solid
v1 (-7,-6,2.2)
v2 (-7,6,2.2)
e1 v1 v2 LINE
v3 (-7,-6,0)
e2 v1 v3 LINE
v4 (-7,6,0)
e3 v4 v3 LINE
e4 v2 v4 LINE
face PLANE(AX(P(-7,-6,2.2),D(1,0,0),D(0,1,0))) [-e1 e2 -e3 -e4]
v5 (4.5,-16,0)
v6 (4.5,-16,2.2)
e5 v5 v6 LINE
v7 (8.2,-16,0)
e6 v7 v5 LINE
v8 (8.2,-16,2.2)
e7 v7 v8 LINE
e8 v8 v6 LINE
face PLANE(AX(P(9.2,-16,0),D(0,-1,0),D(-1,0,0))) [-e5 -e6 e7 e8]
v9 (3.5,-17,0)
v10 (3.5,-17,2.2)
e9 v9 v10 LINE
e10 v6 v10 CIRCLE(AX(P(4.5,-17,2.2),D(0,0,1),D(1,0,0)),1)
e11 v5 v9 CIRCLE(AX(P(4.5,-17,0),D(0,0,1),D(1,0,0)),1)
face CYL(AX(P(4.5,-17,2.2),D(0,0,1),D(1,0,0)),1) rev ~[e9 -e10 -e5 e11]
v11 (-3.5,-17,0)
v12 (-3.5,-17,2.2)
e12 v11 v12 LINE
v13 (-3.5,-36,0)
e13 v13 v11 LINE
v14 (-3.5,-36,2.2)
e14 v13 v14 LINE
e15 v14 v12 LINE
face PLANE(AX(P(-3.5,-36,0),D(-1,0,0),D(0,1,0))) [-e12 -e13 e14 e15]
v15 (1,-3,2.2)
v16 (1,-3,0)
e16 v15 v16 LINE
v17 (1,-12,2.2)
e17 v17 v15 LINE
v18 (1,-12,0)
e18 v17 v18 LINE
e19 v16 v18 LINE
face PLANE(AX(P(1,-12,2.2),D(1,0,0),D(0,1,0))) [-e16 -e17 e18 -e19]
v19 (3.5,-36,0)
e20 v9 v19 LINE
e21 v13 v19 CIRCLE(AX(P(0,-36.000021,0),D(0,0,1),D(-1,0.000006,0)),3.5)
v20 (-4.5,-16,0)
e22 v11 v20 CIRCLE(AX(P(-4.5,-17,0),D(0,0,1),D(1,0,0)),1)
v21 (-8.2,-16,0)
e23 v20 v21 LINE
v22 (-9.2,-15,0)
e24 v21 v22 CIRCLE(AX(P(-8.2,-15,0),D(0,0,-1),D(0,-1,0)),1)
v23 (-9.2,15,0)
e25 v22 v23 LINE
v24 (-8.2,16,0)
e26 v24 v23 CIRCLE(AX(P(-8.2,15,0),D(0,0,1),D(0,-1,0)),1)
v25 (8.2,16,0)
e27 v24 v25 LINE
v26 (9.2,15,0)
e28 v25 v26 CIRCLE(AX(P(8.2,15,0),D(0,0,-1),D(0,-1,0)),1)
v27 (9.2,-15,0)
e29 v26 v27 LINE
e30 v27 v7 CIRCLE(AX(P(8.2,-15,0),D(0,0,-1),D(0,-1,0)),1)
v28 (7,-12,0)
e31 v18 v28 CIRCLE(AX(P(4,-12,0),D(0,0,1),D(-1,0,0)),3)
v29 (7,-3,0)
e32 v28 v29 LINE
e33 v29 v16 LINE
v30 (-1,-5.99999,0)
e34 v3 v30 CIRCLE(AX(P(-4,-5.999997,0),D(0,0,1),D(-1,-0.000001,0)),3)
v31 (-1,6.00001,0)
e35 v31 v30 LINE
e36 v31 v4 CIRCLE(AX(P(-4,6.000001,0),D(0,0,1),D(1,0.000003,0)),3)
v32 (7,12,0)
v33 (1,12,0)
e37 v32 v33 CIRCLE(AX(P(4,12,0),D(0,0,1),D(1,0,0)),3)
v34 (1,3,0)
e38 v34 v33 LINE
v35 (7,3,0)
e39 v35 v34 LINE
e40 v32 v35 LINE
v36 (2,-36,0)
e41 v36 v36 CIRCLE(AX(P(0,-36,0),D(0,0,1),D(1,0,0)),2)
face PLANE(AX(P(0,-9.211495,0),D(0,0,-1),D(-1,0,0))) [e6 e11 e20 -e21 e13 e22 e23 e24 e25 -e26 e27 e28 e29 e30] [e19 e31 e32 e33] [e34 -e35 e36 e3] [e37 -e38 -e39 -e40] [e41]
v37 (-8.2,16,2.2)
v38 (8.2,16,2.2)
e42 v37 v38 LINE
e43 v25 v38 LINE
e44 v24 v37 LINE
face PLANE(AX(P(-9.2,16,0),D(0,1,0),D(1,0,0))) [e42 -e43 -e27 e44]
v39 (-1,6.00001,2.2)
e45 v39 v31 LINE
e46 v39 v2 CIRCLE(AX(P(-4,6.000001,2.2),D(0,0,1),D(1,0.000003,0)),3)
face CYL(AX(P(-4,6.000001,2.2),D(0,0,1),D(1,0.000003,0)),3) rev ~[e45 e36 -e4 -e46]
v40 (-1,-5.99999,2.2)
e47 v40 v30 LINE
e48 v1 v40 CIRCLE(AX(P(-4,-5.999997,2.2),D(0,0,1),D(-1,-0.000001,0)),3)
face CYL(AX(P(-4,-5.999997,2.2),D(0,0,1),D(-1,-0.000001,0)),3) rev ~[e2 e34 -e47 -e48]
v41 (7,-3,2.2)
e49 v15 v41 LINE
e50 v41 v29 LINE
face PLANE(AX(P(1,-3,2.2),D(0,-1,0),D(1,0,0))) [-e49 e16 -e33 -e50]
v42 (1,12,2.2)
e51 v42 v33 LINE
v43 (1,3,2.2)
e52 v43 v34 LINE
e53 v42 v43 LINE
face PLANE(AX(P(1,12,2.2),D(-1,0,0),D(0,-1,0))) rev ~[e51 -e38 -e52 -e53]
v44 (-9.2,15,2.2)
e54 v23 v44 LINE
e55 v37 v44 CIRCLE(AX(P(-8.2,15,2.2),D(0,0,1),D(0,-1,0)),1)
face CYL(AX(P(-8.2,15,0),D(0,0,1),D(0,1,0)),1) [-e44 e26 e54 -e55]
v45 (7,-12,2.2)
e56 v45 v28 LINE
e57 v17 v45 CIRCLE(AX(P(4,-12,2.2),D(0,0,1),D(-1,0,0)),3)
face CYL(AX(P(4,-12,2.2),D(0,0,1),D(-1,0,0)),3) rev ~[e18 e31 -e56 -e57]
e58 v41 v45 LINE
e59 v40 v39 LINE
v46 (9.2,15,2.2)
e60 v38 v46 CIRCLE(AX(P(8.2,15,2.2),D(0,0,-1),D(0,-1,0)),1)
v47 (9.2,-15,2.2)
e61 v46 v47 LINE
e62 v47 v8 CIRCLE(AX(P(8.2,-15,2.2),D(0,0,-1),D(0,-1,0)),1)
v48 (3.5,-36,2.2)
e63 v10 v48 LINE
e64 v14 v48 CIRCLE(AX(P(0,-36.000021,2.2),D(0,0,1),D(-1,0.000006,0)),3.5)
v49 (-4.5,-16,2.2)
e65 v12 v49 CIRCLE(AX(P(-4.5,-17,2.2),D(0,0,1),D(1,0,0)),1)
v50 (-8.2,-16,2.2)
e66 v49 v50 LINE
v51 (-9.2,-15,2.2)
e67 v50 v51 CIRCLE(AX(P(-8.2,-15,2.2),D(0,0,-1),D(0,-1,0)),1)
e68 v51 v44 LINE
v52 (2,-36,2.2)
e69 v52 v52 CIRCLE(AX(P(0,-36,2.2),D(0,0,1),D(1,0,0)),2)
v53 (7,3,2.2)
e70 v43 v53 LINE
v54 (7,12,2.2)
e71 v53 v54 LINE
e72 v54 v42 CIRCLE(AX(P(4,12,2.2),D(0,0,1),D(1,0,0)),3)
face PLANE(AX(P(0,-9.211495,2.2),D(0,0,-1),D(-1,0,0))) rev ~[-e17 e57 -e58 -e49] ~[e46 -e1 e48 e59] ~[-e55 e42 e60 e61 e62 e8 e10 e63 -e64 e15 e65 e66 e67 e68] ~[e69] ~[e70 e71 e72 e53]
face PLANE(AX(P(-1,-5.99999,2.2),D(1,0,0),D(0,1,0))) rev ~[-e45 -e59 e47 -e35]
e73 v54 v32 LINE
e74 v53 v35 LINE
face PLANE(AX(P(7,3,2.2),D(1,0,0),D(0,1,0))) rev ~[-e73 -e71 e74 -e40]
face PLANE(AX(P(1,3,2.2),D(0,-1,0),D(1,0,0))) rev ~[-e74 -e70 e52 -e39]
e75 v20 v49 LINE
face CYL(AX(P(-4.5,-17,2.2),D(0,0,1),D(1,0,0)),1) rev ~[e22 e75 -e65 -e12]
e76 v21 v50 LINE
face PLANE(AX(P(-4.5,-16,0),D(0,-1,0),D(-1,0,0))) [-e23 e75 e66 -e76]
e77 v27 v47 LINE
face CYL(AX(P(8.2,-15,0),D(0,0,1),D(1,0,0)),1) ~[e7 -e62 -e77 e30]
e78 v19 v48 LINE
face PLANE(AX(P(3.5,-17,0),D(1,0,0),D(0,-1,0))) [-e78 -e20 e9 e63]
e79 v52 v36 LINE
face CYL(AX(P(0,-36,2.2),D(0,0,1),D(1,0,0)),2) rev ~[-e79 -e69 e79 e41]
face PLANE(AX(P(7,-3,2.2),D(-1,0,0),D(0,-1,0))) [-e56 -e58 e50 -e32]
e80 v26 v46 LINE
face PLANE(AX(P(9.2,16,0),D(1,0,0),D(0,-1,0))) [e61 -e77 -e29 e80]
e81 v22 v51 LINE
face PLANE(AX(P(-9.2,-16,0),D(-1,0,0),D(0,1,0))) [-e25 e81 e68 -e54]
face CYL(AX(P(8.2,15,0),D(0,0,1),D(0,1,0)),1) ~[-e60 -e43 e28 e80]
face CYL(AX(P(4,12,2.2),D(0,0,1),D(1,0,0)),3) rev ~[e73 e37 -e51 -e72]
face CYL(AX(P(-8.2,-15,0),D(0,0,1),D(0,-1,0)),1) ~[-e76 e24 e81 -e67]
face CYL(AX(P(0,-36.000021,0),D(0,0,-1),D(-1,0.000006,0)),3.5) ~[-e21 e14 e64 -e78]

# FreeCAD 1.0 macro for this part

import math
import FreeCAD as App
import Part
import Sketcher


def edges_at(feature, points):
    """Names of the edges that pass closest to the given points."""
    edges = feature.Shape.Edges
    near = lambda p: min(range(len(edges)), key=lambda i: edges[i].distToShape(Part.Vertex(*p))[0])
    return sorted({f"Edge{near(p) + 1}" for p in points})

doc = App.newDocument("Part")
body = doc.addObject("PartDesign::Body", "Body")

# Sketch on XY plane
sketch1 = doc.addObject("Sketcher::SketchObject", "Sketch")
body.addObject(sketch1)
sketch1.AttachmentSupport = (doc.XY_Plane, [""])
sketch1.MapMode = "FlatFace"
sketch1.addGeometry(Part.LineSegment(App.Vector(9.2, 16, 0), App.Vector(-9.2, 16, 0)), False)
sketch1.addGeometry(Part.LineSegment(App.Vector(-9.2, 16, 0), App.Vector(-9.2, -16, 0)), False)
sketch1.addGeometry(Part.LineSegment(App.Vector(-9.2, -16, 0), App.Vector(-4.5, -16, 0)), False)
sketch1.addGeometry(Part.LineSegment(App.Vector(-4.5, -16, 0), App.Vector(-4.5, -17, 0)), False)
sketch1.addGeometry(Part.LineSegment(App.Vector(-4.5, -17, 0), App.Vector(-3.5, -17, 0)), False)
sketch1.addGeometry(Part.LineSegment(App.Vector(-3.5, -17, 0), App.Vector(-3.5, -36, 0)), False)
sketch1.addGeometry(Part.ArcOfCircle(Part.Circle(App.Vector(0, -36, 0), App.Vector(0, 0, 1), 3.5), math.radians(180), math.radians(360)), False)
sketch1.addGeometry(Part.LineSegment(App.Vector(3.5, -36, 0), App.Vector(3.5, -17, 0)), False)
sketch1.addGeometry(Part.LineSegment(App.Vector(3.5, -17, 0), App.Vector(4.5, -17, 0)), False)
sketch1.addGeometry(Part.LineSegment(App.Vector(4.5, -17, 0), App.Vector(4.5, -16, 0)), False)
sketch1.addGeometry(Part.LineSegment(App.Vector(4.5, -16, 0), App.Vector(9.2, -16, 0)), False)
sketch1.addGeometry(Part.LineSegment(App.Vector(9.2, -16, 0), App.Vector(9.2, 16, 0)), False)
sketch1.addConstraint(Sketcher.Constraint("Coincident", 0, 2, 1, 1))
sketch1.addConstraint(Sketcher.Constraint("Coincident", 1, 2, 2, 1))
sketch1.addConstraint(Sketcher.Constraint("Coincident", 2, 2, 3, 1))
sketch1.addConstraint(Sketcher.Constraint("Coincident", 3, 2, 4, 1))
sketch1.addConstraint(Sketcher.Constraint("Coincident", 4, 2, 5, 1))
sketch1.addConstraint(Sketcher.Constraint("Coincident", 5, 2, 6, 1))
sketch1.addConstraint(Sketcher.Constraint("Coincident", 6, 2, 7, 1))
sketch1.addConstraint(Sketcher.Constraint("Coincident", 7, 2, 8, 1))
sketch1.addConstraint(Sketcher.Constraint("Coincident", 8, 2, 9, 1))
sketch1.addConstraint(Sketcher.Constraint("Coincident", 9, 2, 10, 1))
sketch1.addConstraint(Sketcher.Constraint("Coincident", 10, 2, 11, 1))
sketch1.addConstraint(Sketcher.Constraint("Coincident", 11, 2, 0, 1))
sketch1.addConstraint(Sketcher.Constraint("Horizontal", 0))
sketch1.addConstraint(Sketcher.Constraint("Vertical", 1))
sketch1.addConstraint(Sketcher.Constraint("Horizontal", 2))
sketch1.addConstraint(Sketcher.Constraint("Vertical", 3))
sketch1.addConstraint(Sketcher.Constraint("Horizontal", 4))
sketch1.addConstraint(Sketcher.Constraint("Vertical", 5))
sketch1.addConstraint(Sketcher.Constraint("Vertical", 7))
sketch1.addConstraint(Sketcher.Constraint("Horizontal", 8))
sketch1.addConstraint(Sketcher.Constraint("Vertical", 9))
sketch1.addConstraint(Sketcher.Constraint("Horizontal", 10))
sketch1.addConstraint(Sketcher.Constraint("Vertical", 11))
sketch1.addConstraint(Sketcher.Constraint("Symmetric", 0, 2, 10, 2, -1, 1))
sketch1.addConstraint(Sketcher.Constraint("Symmetric", 5, 2, 6, 2, -2))
sketch1.addConstraint(Sketcher.Constraint("Symmetric", 3, 2, 8, 2, -2))
sketch1.addConstraint(Sketcher.Constraint("Horizontal", 2, 2, 9, 2))
sketch1.addConstraint(Sketcher.Constraint("Equal", 8, 3))
sketch1.addConstraint(Sketcher.Constraint("Radius", 6, 3.5))
sketch1.addConstraint(Sketcher.Constraint("DistanceX", 4, 1, 4, 2, 1.0))
sketch1.addConstraint(Sketcher.Constraint("DistanceY", 1, 2, 1, 1, 32.0))
sketch1.addConstraint(Sketcher.Constraint("DistanceY", 5, 2, 5, 1, 19.0))
sketch1.addConstraint(Sketcher.Constraint("DistanceX", 0, 2, 0, 1, 18.4))
sketch1.addConstraint(Sketcher.Constraint("DistanceY", 6, 3, -1, 1, 36.000021))
pad1 = doc.addObject("PartDesign::Pad", "Pad")
body.addObject(pad1)
pad1.Profile = sketch1
pad1.Length = 2.2
doc.recompute()

fillet = doc.addObject("PartDesign::Fillet", "Fillet")
body.addObject(fillet)
fillet.Base = (pad1, edges_at(pad1, [
    (-9.2, 16, 1.1),
    (9.2, 16, 1.1),
    (9.2, -16, 1.1),
    (-9.2, -16, 1.1),
]))
fillet.Radius = 1

# Sketch on XY plane
sketch2 = doc.addObject("Sketcher::SketchObject", "Sketch001")
body.addObject(sketch2)
sketch2.AttachmentSupport = (doc.XY_Plane, [""])
sketch2.MapMode = "FlatFace"
sketch2.AttachmentOffset = App.Placement(App.Vector(0, 0, 2.2), App.Rotation())
sketch2.addGeometry(Part.Circle(App.Vector(0, -36, 0), App.Vector(0, 0, 1), 2), False)
sketch2.addGeometry(Part.Circle(App.Vector(-4.5, -17, 0), App.Vector(0, 0, 1), 1), False)
sketch2.addGeometry(Part.Circle(App.Vector(4.5, -17, 0), App.Vector(0, 0, 1), 1), False)
sketch2.addGeometry(Part.ArcOfCircle(Part.Circle(App.Vector(-4, 6, 0), App.Vector(0, 0, 1), 3), math.radians(0), math.radians(180)), False)
sketch2.addGeometry(Part.LineSegment(App.Vector(-7, 6, 0), App.Vector(-7, -6, 0)), False)
sketch2.addGeometry(Part.ArcOfCircle(Part.Circle(App.Vector(-4, -6, 0), App.Vector(0, 0, 1), 3), math.radians(-180), math.radians(0)), False)
sketch2.addGeometry(Part.LineSegment(App.Vector(-1, -6, 0), App.Vector(-1, 6, 0)), False)
sketch2.addGeometry(Part.LineSegment(App.Vector(1, 12, 0), App.Vector(1, 3, 0)), False)
sketch2.addGeometry(Part.LineSegment(App.Vector(1, 3, 0), App.Vector(7, 3, 0)), False)
sketch2.addGeometry(Part.LineSegment(App.Vector(7, 3, 0), App.Vector(7, 12, 0)), False)
sketch2.addGeometry(Part.ArcOfCircle(Part.Circle(App.Vector(4, 12, 0), App.Vector(0, 0, 1), 3), math.radians(0), math.radians(180)), False)
sketch2.addGeometry(Part.LineSegment(App.Vector(1, -3, 0), App.Vector(1, -12, 0)), False)
sketch2.addGeometry(Part.ArcOfCircle(Part.Circle(App.Vector(4, -12, 0), App.Vector(0, 0, 1), 3), math.radians(180), math.radians(360)), False)
sketch2.addGeometry(Part.LineSegment(App.Vector(7, -12, 0), App.Vector(7, -3, 0)), False)
sketch2.addGeometry(Part.LineSegment(App.Vector(7, -3, 0), App.Vector(1, -3, 0)), False)
sketch2.addConstraint(Sketcher.Constraint("Tangent", 3, 2, 4, 1))
sketch2.addConstraint(Sketcher.Constraint("Tangent", 4, 2, 5, 1))
sketch2.addConstraint(Sketcher.Constraint("Coincident", 5, 2, 6, 1))
sketch2.addConstraint(Sketcher.Constraint("Coincident", 6, 2, 3, 1))
sketch2.addConstraint(Sketcher.Constraint("Coincident", 7, 2, 8, 1))
sketch2.addConstraint(Sketcher.Constraint("Coincident", 8, 2, 9, 1))
sketch2.addConstraint(Sketcher.Constraint("Tangent", 9, 2, 10, 1))
sketch2.addConstraint(Sketcher.Constraint("Tangent", 10, 2, 7, 1))
sketch2.addConstraint(Sketcher.Constraint("Tangent", 11, 2, 12, 1))
sketch2.addConstraint(Sketcher.Constraint("Tangent", 12, 2, 13, 1))
sketch2.addConstraint(Sketcher.Constraint("Coincident", 13, 2, 14, 1))
sketch2.addConstraint(Sketcher.Constraint("Coincident", 14, 2, 11, 1))
sketch2.addConstraint(Sketcher.Constraint("Vertical", 4))
sketch2.addConstraint(Sketcher.Constraint("Vertical", 6))
sketch2.addConstraint(Sketcher.Constraint("Vertical", 7))
sketch2.addConstraint(Sketcher.Constraint("Horizontal", 8))
sketch2.addConstraint(Sketcher.Constraint("Vertical", 9))
sketch2.addConstraint(Sketcher.Constraint("Vertical", 11))
sketch2.addConstraint(Sketcher.Constraint("Vertical", 13))
sketch2.addConstraint(Sketcher.Constraint("Horizontal", 14))
sketch2.addConstraint(Sketcher.Constraint("Equal", 1, 2))
sketch2.addConstraint(Sketcher.Constraint("Equal", 5, 10))
sketch2.addConstraint(Sketcher.Constraint("Equal", 10, 12))
sketch2.addConstraint(Sketcher.Constraint("Symmetric", 1, 3, 2, 3, -2))
sketch2.addConstraint(Sketcher.Constraint("Symmetric", 10, 3, 12, 3, -1))
sketch2.addConstraint(Sketcher.Constraint("PointOnObject", 0, 3, -2))
sketch2.addConstraint(Sketcher.Constraint("Equal", 4, 6))
sketch2.addConstraint(Sketcher.Constraint("Equal", 9, 11))
sketch2.addConstraint(Sketcher.Constraint("Diameter", 0, 4.0))
sketch2.addConstraint(Sketcher.Constraint("Diameter", 1, 2.0))
sketch2.addConstraint(Sketcher.Constraint("Radius", 3, 3.0))
sketch2.addConstraint(Sketcher.Constraint("DistanceY", 4, 2, 4, 1, 12.0))
sketch2.addConstraint(Sketcher.Constraint("DistanceY", 7, 2, 7, 1, 9.0))
sketch2.addConstraint(Sketcher.Constraint("DistanceY", 0, 3, -1, 1, 36.0))
sketch2.addConstraint(Sketcher.Constraint("DistanceY", 1, 3, -1, 1, 17.0))
sketch2.addConstraint(Sketcher.Constraint("DistanceX", 3, 3, -1, 1, 4.0))
sketch2.addConstraint(Sketcher.Constraint("DistanceY", -1, 1, 3, 3, 6.000001))
sketch2.addConstraint(Sketcher.Constraint("DistanceX", -1, 1, 10, 3, 4.0))
sketch2.addConstraint(Sketcher.Constraint("DistanceY", -1, 1, 10, 3, 12.0))
sketch2.addConstraint(Sketcher.Constraint("DistanceX", 1, 3, 2, 3, 9.0))
sketch2.addConstraint(Sketcher.Constraint("DistanceY", 5, 2, -1, 1, 5.99999))
pocket1 = doc.addObject("PartDesign::Pocket", "Pocket")
body.addObject(pocket1)
pocket1.Profile = sketch2
pocket1.Length = 5

doc.recompute()
